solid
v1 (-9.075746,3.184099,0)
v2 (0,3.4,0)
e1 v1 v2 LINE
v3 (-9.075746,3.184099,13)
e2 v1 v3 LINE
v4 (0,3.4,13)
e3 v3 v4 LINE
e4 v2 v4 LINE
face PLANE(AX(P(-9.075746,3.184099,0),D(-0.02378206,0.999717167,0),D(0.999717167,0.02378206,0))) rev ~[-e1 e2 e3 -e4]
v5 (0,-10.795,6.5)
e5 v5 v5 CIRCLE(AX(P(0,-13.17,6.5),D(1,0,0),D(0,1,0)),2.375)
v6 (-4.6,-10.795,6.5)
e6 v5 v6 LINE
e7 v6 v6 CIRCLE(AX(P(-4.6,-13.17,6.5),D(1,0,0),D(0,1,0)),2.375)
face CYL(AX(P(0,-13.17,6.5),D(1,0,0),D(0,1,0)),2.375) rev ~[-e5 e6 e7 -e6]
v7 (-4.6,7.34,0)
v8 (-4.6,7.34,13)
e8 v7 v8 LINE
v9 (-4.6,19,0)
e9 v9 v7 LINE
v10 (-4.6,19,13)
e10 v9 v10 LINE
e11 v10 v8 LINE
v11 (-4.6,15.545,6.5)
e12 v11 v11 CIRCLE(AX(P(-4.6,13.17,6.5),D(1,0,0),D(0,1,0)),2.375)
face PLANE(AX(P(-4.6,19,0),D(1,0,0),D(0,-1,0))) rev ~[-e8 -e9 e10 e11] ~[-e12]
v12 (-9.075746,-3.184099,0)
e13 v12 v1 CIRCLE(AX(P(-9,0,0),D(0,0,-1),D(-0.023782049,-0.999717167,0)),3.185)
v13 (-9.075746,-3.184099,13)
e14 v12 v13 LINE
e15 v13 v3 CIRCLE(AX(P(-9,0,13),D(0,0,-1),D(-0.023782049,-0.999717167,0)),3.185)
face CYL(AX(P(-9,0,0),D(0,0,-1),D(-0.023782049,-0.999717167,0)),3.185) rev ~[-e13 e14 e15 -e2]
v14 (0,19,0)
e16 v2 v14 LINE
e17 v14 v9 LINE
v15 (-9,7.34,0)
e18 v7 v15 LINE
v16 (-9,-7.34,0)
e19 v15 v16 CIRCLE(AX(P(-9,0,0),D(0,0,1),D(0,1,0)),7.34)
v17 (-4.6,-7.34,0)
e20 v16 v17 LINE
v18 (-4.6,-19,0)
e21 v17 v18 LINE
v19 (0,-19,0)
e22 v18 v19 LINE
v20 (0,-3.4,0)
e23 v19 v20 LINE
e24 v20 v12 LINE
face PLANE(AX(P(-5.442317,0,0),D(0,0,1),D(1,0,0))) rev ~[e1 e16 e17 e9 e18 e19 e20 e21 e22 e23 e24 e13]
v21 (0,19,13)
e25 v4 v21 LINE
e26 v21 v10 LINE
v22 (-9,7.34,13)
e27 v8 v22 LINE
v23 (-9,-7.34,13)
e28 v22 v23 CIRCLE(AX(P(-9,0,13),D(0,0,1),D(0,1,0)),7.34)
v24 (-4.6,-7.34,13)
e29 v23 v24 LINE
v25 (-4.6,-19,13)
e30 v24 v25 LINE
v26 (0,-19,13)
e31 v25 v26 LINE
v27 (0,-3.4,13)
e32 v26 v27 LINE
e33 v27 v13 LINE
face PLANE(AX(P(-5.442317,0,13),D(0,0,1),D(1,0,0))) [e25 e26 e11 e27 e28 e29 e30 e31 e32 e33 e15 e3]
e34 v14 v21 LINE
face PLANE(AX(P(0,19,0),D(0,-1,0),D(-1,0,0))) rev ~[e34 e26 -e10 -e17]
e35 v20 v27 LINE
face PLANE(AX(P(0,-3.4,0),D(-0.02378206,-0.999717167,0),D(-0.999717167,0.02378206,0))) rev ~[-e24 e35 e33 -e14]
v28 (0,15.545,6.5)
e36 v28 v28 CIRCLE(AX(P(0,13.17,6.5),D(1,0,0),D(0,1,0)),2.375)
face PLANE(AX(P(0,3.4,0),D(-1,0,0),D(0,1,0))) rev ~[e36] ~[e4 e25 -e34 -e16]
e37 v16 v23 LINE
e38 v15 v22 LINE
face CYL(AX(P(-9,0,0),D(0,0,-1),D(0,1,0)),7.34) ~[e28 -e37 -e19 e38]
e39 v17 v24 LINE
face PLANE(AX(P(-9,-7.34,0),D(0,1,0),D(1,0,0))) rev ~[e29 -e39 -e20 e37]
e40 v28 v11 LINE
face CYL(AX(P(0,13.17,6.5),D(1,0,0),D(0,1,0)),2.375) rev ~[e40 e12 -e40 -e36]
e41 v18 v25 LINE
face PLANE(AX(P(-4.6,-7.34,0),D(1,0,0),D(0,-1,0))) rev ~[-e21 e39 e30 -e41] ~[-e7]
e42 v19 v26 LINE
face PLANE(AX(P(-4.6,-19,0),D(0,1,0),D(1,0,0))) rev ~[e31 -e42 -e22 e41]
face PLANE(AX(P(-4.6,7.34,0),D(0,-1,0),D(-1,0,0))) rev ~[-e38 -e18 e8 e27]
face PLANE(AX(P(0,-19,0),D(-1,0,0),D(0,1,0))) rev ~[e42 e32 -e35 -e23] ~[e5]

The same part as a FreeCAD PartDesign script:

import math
import FreeCAD as App
import Part
import Sketcher
Q = App.Units.Quantity

doc = App.newDocument("Part")
body = doc.addObject("PartDesign::Body", "Body")

# Sketch on XY plane
sketch1 = body.newObject("Sketcher::SketchObject", "Sketch")
sketch1.AttachmentSupport = (doc.getObject("XY_Plane"), [""])
sketch1.MapMode = "FlatFace"
sketch1.addGeometry(Part.LineSegment(App.Vector(-4.6, -19, 0), App.Vector(0, -19, 0)), False)
sketch1.addGeometry(Part.LineSegment(App.Vector(0, -19, 0), App.Vector(0, -3.4, 0)), False)
sketch1.addGeometry(Part.LineSegment(App.Vector(0, -3.4, 0), App.Vector(-9.1, -3.2, 0)), False)
sketch1.addGeometry(Part.ArcOfCircle(Part.Circle(App.Vector(-9, 0, 0), App.Vector(0, 0, 1), 3.2), math.radians(91), math.radians(269)), False)
sketch1.addGeometry(Part.LineSegment(App.Vector(-9.1, 3.2, 0), App.Vector(0, 3.4, 0)), False)
sketch1.addGeometry(Part.LineSegment(App.Vector(0, 3.4, 0), App.Vector(0, 19, 0)), False)
sketch1.addGeometry(Part.LineSegment(App.Vector(0, 19, 0), App.Vector(-4.6, 19, 0)), False)
sketch1.addGeometry(Part.LineSegment(App.Vector(-4.6, 19, 0), App.Vector(-4.6, 7.3, 0)), False)
sketch1.addGeometry(Part.LineSegment(App.Vector(-4.6, 7.3, 0), App.Vector(-9, 7.3, 0)), False)
sketch1.addGeometry(Part.ArcOfCircle(Part.Circle(App.Vector(-9, 0, 0), App.Vector(0, 0, 1), 7.3), math.radians(90), math.radians(270)), False)
sketch1.addGeometry(Part.LineSegment(App.Vector(-9, -7.3, 0), App.Vector(-4.6, -7.3, 0)), False)
sketch1.addGeometry(Part.LineSegment(App.Vector(-4.6, -7.3, 0), App.Vector(-4.6, -19, 0)), False)
sketch1.addConstraint(Sketcher.Constraint("Coincident", 0, 2, 1, 1))
sketch1.addConstraint(Sketcher.Constraint("Coincident", 1, 2, 2, 1))
sketch1.addConstraint(Sketcher.Constraint("Tangent", 2, 2, 3, 2))
sketch1.addConstraint(Sketcher.Constraint("Tangent", 3, 1, 4, 1))
sketch1.addConstraint(Sketcher.Constraint("Coincident", 4, 2, 5, 1))
sketch1.addConstraint(Sketcher.Constraint("Coincident", 5, 2, 6, 1))
sketch1.addConstraint(Sketcher.Constraint("Coincident", 6, 2, 7, 1))
sketch1.addConstraint(Sketcher.Constraint("Coincident", 7, 2, 8, 1))
sketch1.addConstraint(Sketcher.Constraint("Tangent", 8, 2, 9, 1))
sketch1.addConstraint(Sketcher.Constraint("Tangent", 9, 2, 10, 1))
sketch1.addConstraint(Sketcher.Constraint("Coincident", 10, 2, 11, 1))
sketch1.addConstraint(Sketcher.Constraint("Coincident", 11, 2, 0, 1))
sketch1.addConstraint(Sketcher.Constraint("Horizontal", 0))
sketch1.addConstraint(Sketcher.Constraint("Vertical", 1))
sketch1.addConstraint(Sketcher.Constraint("Vertical", 5))
sketch1.addConstraint(Sketcher.Constraint("Horizontal", 6))
sketch1.addConstraint(Sketcher.Constraint("Vertical", 7))
sketch1.addConstraint(Sketcher.Constraint("Horizontal", 8))
sketch1.addConstraint(Sketcher.Constraint("Horizontal", 10))
sketch1.addConstraint(Sketcher.Constraint("Vertical", 11))
sketch1.addConstraint(Sketcher.Constraint("Coincident", 9, 3, 3, 3))
sketch1.addConstraint(Sketcher.Constraint("Symmetric", 1, 2, 4, 2, -1, 1))
sketch1.addConstraint(Sketcher.Constraint("Symmetric", 2, 2, 3, 1, -1))
sketch1.addConstraint(Sketcher.Constraint("Symmetric", 6, 2, 11, 2, -1))
sketch1.addConstraint(Sketcher.Constraint("Radius", 9, Q("7.34 mm")))
sketch1.addConstraint(Sketcher.Constraint("DistanceX", 0, 1, 0, 2, Q("4.6 mm")))
sketch1.addConstraint(Sketcher.Constraint("DistanceX", 8, 2, 8, 1, Q("4.4 mm")))
sketch1.addConstraint(Sketcher.Constraint("DistanceY", 1, 1, 1, 2, Q("15.6 mm")))
sketch1.addConstraint(Sketcher.Constraint("DistanceY", 0, 2, -1, 1, Q("19 mm")))
sketch1.addConstraint(Sketcher.Constraint("Radius", 3, Q("3.185 mm")))
pad1 = body.newObject("PartDesign::Pad", "Pad")
pad1.Profile = sketch1
pad1.Length = 13

# Sketch on YZ plane
sketch2 = body.newObject("Sketcher::SketchObject", "Sketch001")
sketch2.AttachmentSupport = (doc.getObject("YZ_Plane"), [""])
sketch2.MapMode = "FlatFace"
sketch2.addGeometry(Part.Circle(App.Vector(-13.2, 6.5, 0), App.Vector(0, 0, 1), 2.4), False)
sketch2.addGeometry(Part.Circle(App.Vector(13.2, 6.5, 0), App.Vector(0, 0, 1), 2.4), False)
sketch2.addConstraint(Sketcher.Constraint("Equal", 0, 1))
sketch2.addConstraint(Sketcher.Constraint("Symmetric", 0, 3, 1, 3, -2))
sketch2.addConstraint(Sketcher.Constraint("Diameter", 0, Q("4.75 mm")))
sketch2.addConstraint(Sketcher.Constraint("DistanceY", -1, 1, 0, 3, Q("6.5 mm")))
sketch2.addConstraint(Sketcher.Constraint("DistanceX", 0, 3, -1, 1, Q("13.17 mm")))
pocket1 = body.newObject("PartDesign::Pocket", "Pocket")
pocket1.Profile = sketch2
pocket1.Type = "ThroughAll"

doc.recompute()
